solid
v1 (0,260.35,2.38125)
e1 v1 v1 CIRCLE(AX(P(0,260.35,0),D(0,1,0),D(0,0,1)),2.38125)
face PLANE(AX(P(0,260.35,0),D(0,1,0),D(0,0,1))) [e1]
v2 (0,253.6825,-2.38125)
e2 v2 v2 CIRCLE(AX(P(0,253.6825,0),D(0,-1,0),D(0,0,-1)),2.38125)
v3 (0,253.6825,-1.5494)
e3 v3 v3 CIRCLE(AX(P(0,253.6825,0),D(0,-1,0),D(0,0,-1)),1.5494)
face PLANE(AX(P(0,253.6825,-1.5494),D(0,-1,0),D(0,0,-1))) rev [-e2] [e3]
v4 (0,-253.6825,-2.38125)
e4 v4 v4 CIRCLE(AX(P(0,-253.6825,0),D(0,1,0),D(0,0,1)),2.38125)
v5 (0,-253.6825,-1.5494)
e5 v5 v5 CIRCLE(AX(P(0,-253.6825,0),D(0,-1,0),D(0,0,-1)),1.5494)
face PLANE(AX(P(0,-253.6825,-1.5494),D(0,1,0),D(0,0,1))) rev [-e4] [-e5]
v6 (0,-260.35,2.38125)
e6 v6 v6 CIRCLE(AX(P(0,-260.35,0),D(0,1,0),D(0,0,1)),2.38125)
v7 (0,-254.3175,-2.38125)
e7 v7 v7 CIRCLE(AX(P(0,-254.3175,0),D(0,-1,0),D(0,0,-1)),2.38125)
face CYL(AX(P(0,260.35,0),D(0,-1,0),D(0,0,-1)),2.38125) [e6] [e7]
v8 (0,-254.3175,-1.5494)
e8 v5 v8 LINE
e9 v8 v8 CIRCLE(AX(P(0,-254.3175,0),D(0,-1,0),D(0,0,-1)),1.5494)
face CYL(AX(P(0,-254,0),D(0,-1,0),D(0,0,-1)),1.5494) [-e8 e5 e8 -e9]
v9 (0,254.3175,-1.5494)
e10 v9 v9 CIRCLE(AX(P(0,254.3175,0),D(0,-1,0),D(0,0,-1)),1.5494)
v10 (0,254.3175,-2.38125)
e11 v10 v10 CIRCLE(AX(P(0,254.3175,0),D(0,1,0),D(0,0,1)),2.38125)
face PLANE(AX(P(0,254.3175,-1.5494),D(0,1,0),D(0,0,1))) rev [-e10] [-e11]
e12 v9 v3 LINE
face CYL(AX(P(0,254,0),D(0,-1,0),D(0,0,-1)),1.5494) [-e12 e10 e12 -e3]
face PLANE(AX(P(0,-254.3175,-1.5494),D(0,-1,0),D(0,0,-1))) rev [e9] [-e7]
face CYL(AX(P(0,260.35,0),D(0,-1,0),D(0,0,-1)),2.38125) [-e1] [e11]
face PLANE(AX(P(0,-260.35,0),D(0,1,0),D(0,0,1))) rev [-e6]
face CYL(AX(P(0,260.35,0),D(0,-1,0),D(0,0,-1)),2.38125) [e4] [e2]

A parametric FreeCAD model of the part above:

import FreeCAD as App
import Part
import Sketcher
Q = App.Units.Quantity


def add_polygon(sketch, points):
    """Adds a closed chain of lines whose ends are joined by coincident constraints."""
    first, n = sketch.GeometryCount, len(points)
    for a, b in zip(points, points[1:] + points[:1]):
        sketch.addGeometry(Part.LineSegment(App.Vector(*a, 0), App.Vector(*b, 0)), False)
    for i in range(n):
        sketch.addConstraint(Sketcher.Constraint("Coincident", first + i, 2, first + (i + 1) % n, 1))

doc = App.newDocument("Part")
params = doc.addObject("Spreadsheet::Sheet", "Params")
for row, (alias, value) in enumerate([
    ("sketch1_diameter", "0.1875 in"),
    ("pad1_length", "20.5 in"),
    ("sketch2_width", "0.025 in"),
    ("sketch3_diameter", "0.1875 in"),
], start=1):
    params.set(f"A{row}", alias)
    params.set(f"B{row}", "=" + value)
    params.setAlias(f"B{row}", alias)

body = doc.addObject("PartDesign::Body", "Body")

sketch1 = doc.addObject("Sketcher::SketchObject", "Sketch")
body.addObject(sketch1)
sketch1.AttachmentSupport = (doc.XZ_Plane, [""])
sketch1.MapMode = "FlatFace"
sketch1.addGeometry(Part.Circle(App.Vector(0, 0, 0), App.Vector(0, 0, 1), 2.4), False)
sketch1.addConstraint(Sketcher.Constraint("Coincident", 0, 3, -1, 1))
sketch1.addConstraint(Sketcher.Constraint("Diameter", 0, Q("0.1875 in")))
sketch1.setExpression("Constraints[1]", "Params.sketch1_diameter")
pad1 = doc.addObject("PartDesign::Pad", "Pad")
body.addObject(pad1)
pad1.Profile = sketch1
pad1.setExpression("Length", "Params.pad1_length")
pad1.Midplane = True

sketch2 = doc.addObject("Sketcher::SketchObject", "Sketch001")
body.addObject(sketch2)
sketch2.AttachmentSupport = (doc.YZ_Plane, [""])
sketch2.MapMode = "FlatFace"
add_polygon(sketch2, [(-253.7, -1.5), (-254.3, -1.5), (-254.3, -3.2), (-253.7, -3.2)])
sketch2.addConstraint(Sketcher.Constraint("Horizontal", 0))
sketch2.addConstraint(Sketcher.Constraint("Vertical", 1))
sketch2.addConstraint(Sketcher.Constraint("Horizontal", 2))
sketch2.addConstraint(Sketcher.Constraint("Vertical", 3))
sketch2.addConstraint(Sketcher.Constraint("DistanceX", 0, 2, 0, 1, Q("0.025 in")))
sketch2.addConstraint(Sketcher.Constraint("DistanceY", 1, 2, 1, 1, Q("0.0655 in")))
sketch2.addConstraint(Sketcher.Constraint("DistanceY", 0, 2, -1, 1, Q("0.061 in")))
sketch2.addConstraint(Sketcher.Constraint("DistanceX", 0, 2, -1, 1, Q("10.0125 in")))
sketch2.setExpression("Constraints[8]", "Params.sketch2_width")

sketch3 = doc.addObject("Sketcher::SketchObject", "Sketch002")
body.addObject(sketch3)
sketch3.AttachmentSupport = (doc.XZ_Plane, [""])
sketch3.MapMode = "FlatFace"
sketch3.AttachmentOffset = App.Placement(App.Vector(0, 0, 10 * 25.4), App.Rotation())
sketch3.addGeometry(Part.Circle(App.Vector(0, 0, 0), App.Vector(0, 0, 1), 2.4), False)
sketch3.addConstraint(Sketcher.Constraint("Coincident", 0, 3, -1, 1))
sketch3.addConstraint(Sketcher.Constraint("Diameter", 0, Q("0.1875 in")))
sketch3.setExpression("Constraints[1]", "Params.sketch3_diameter")
doc.recompute()

subtractivepipe = doc.addObject("PartDesign::SubtractivePipe", "SubtractivePipe")
body.addObject(subtractivepipe)
subtractivepipe.Profile = sketch2
subtractivepipe.Spine = (sketch3, ["Edge1"])
doc.recompute()

mirrored = doc.addObject("PartDesign::Mirrored", "Mirrored")
body.addObject(mirrored)
mirrored.Originals = [subtractivepipe]
mirrored.MirrorPlane = (doc.XZ_Plane, [""])
body.Tip = mirrored

doc.recompute()
